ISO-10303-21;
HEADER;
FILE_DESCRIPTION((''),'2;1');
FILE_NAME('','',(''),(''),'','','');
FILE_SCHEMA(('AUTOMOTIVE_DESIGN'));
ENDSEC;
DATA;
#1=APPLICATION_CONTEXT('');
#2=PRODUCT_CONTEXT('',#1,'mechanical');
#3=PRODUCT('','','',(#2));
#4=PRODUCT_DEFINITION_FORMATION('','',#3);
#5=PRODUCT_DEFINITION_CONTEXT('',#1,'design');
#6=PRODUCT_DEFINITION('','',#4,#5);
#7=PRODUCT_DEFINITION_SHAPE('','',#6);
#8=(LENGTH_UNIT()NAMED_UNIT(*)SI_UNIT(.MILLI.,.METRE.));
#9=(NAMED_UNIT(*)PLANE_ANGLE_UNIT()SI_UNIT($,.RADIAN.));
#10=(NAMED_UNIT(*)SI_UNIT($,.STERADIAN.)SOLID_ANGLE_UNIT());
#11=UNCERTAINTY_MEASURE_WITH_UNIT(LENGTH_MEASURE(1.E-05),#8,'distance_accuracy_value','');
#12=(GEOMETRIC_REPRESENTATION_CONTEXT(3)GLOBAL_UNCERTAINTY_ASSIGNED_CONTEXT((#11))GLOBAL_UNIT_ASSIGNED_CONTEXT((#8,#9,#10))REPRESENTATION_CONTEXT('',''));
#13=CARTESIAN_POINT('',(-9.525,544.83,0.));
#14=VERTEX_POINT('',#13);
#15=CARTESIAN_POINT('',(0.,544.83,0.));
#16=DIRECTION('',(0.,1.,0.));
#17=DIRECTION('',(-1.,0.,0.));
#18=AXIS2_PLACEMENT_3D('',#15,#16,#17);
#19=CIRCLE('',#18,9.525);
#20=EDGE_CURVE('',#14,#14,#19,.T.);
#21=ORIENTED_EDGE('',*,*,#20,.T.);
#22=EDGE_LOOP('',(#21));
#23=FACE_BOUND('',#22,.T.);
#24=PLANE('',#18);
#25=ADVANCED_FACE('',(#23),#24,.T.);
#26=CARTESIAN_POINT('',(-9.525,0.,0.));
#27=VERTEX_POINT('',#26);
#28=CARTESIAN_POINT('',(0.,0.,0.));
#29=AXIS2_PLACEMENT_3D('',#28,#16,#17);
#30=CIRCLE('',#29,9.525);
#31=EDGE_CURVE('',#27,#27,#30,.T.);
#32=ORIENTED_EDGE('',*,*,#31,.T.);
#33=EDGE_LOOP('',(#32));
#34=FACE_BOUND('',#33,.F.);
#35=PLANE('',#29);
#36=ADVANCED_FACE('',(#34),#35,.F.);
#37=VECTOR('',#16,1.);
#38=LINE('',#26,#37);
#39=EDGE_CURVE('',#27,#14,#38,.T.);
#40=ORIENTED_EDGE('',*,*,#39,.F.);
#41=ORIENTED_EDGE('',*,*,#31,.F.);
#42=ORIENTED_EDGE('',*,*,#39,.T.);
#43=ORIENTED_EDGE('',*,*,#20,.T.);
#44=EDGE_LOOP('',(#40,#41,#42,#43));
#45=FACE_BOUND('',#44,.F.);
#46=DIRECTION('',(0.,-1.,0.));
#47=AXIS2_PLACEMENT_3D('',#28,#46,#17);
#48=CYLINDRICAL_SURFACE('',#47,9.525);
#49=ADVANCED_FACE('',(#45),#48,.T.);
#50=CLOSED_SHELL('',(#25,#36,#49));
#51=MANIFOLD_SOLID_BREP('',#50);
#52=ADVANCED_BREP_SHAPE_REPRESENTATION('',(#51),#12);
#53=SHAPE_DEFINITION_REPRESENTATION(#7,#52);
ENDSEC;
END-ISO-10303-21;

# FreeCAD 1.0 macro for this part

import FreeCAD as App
import Part
import Sketcher
Q = App.Units.Quantity

doc = App.newDocument("Part")
body = doc.addObject("PartDesign::Body", "Body")

sketch1 = body.newObject("Sketcher::SketchObject", "Sketch")
sketch1.AttachmentSupport = (doc.getObject("XZ_Plane"), [""])
sketch1.MapMode = "FlatFace"
sketch1.addGeometry(Part.Circle(App.Vector(0, 0, 0), App.Vector(0, 0, 1), 9.525), False)
sketch1.addConstraint([
    Sketcher.Constraint("Coincident", 0, 3, -1, 1),
    Sketcher.Constraint("Diameter", 0, Q("0.75 in")),
])
pad1 = body.newObject("PartDesign::Pad", "Pad")
pad1.Profile = sketch1
pad1.Length = Q("21.45 in")
pad1.Reversed = True

doc.recompute()
